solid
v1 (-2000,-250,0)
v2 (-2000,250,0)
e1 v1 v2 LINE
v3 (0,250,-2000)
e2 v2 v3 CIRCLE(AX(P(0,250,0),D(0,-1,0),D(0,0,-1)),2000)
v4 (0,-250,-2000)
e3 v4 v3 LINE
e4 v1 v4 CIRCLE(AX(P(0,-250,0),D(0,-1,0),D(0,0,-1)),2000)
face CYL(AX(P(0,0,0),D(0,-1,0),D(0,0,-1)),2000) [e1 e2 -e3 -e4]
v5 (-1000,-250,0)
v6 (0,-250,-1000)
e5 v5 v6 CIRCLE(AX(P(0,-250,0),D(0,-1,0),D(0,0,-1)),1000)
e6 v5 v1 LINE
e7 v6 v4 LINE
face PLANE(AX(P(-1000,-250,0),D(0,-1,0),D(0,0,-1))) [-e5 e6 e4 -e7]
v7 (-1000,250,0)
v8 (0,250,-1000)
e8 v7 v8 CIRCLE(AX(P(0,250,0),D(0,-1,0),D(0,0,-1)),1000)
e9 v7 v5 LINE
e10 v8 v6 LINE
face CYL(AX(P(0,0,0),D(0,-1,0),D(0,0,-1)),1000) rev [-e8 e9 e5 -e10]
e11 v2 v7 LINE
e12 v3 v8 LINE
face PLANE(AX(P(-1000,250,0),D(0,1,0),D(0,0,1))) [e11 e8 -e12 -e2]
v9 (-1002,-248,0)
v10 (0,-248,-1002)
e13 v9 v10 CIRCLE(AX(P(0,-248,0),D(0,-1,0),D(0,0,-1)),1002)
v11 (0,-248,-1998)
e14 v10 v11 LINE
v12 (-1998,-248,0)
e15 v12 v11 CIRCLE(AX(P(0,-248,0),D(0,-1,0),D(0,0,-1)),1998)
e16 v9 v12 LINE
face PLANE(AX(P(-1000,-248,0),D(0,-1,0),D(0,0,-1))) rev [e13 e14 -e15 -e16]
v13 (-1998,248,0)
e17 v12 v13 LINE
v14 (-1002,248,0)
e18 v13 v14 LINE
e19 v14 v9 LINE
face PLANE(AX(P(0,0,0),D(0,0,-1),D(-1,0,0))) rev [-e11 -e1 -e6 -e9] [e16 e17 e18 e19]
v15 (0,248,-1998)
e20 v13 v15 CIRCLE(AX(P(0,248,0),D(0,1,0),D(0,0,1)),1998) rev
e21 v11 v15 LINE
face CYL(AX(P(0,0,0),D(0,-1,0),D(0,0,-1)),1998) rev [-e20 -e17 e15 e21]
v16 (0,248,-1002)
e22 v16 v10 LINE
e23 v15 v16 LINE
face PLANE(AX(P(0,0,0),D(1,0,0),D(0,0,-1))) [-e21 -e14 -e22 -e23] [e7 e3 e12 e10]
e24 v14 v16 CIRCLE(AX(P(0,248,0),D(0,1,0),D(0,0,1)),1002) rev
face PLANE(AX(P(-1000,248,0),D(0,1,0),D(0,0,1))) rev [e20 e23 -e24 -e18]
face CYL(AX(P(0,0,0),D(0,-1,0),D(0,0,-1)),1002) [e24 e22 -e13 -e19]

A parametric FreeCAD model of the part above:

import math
import FreeCAD as App
import Part
import Sketcher

V = App.Vector
Q = App.Units.Quantity


def add_polygon(sketch, points):
    """Adds a closed chain of lines whose ends are joined by coincident constraints."""
    first, n = sketch.GeometryCount, len(points)
    for a, b in zip(points, points[1:] + points[:1]):
        sketch.addGeometry(Part.LineSegment(App.Vector(*a, 0), App.Vector(*b, 0)), False)
    for i in range(n):
        sketch.addConstraint(Sketcher.Constraint("Coincident", first + i, 2, first + (i + 1) % n, 1))

doc = App.newDocument("Part")
body = doc.addObject("PartDesign::Body", "Body")

# Sketch on YZ plane
sketch1 = doc.addObject("Sketcher::SketchObject", "Sketch")
body.addObject(sketch1)
sketch1.AttachmentSupport = (doc.YZ_Plane, [""])
sketch1.MapMode = "FlatFace"
add_polygon(sketch1, [(250, -1000), (-250, -1000), (-250, -2000), (250, -2000)])  # lines 0-3
add_polygon(sketch1, [(-248, -1998), (-248, -1002), (248, -1002), (248, -1998)])  # lines 4-7
sketch1.addConstraint(Sketcher.Constraint("Horizontal", 0))
sketch1.addConstraint(Sketcher.Constraint("Vertical", 1))
sketch1.addConstraint(Sketcher.Constraint("Horizontal", 2))
sketch1.addConstraint(Sketcher.Constraint("Vertical", 3))
sketch1.addConstraint(Sketcher.Constraint("Vertical", 4))
sketch1.addConstraint(Sketcher.Constraint("Horizontal", 5))
sketch1.addConstraint(Sketcher.Constraint("Vertical", 6))
sketch1.addConstraint(Sketcher.Constraint("Horizontal", 7))
sketch1.addConstraint(Sketcher.Constraint("DistanceX", 0, 2, 0, 1, Q("500 mm")))
sketch1.addConstraint(Sketcher.Constraint("DistanceX", 5, 1, 5, 2, Q("496 mm")))
sketch1.addConstraint(Sketcher.Constraint("DistanceY", 1, 2, 1, 1, Q("1000 mm")))
sketch1.addConstraint(Sketcher.Constraint("DistanceY", 4, 1, 4, 2, Q("996 mm")))
sketch1.addConstraint(Sketcher.Constraint("DistanceX", 0, 2, -1, 1, Q("250 mm")))
sketch1.addConstraint(Sketcher.Constraint("DistanceY", 0, 2, -1, 1, Q("1000 mm")))
sketch1.addConstraint(Sketcher.Constraint("DistanceX", 4, 2, -1, 1, Q("248 mm")))
sketch1.addConstraint(Sketcher.Constraint("DistanceY", 4, 2, -1, 1, Q("1002 mm")))

# Sketch on XZ plane
sketch2 = doc.addObject("Sketcher::SketchObject", "Sketch001")
body.addObject(sketch2)
sketch2.AttachmentSupport = (doc.XZ_Plane, [""])
sketch2.MapMode = "FlatFace"
sketch2.addGeometry(Part.ArcOfCircle(Part.Circle(V(0, 0, 0), V(0, 0, 1), 1500), math.radians(180), math.radians(270)), False)
sketch2.addConstraint(Sketcher.Constraint("Coincident", 0, 3, -1, 1))
sketch2.addConstraint(Sketcher.Constraint("PointOnObject", 0, 1, -1))
sketch2.addConstraint(Sketcher.Constraint("PointOnObject", 0, 2, -2))
sketch2.addConstraint(Sketcher.Constraint("Radius", 0, Q("1500 mm")))
doc.recompute()

additivepipe = doc.addObject("PartDesign::AdditivePipe", "AdditivePipe")
body.addObject(additivepipe)
additivepipe.Profile = sketch1
additivepipe.Spine = (sketch2, ["Edge1"])

doc.recompute()
